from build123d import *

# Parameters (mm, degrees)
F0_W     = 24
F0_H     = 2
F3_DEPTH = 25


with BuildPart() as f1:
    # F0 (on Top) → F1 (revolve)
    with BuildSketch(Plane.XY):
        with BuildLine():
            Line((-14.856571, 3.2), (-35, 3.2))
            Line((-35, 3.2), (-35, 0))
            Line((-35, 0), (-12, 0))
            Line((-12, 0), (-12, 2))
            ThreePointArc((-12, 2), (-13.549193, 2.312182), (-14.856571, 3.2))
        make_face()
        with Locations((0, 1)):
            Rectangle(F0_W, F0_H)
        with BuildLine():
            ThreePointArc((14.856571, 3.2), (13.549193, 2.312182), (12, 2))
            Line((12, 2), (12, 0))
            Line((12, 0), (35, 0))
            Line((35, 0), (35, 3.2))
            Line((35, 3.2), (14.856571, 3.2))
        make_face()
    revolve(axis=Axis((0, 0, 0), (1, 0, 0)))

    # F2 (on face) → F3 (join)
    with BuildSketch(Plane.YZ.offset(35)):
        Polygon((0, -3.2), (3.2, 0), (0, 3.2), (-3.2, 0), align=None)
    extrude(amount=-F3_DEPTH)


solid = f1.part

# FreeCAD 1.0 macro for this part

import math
import FreeCAD as App
import Part
import Sketcher
from FreeCAD import Vector

doc = App.newDocument("Part")
params = doc.addObject("Spreadsheet::Sheet", "Params")
for row, (alias, value) in enumerate([
    ("sketch1_width", "70 mm"),
    ("sketch1_width2", "24 mm"),
    ("sketch1_height", "3.2 mm"),
    ("revolution_angle", "360 deg"),
    ("pad1_length", "25 mm"),
], start=1):
    params.set(f"A{row}", alias)
    params.set(f"B{row}", "=" + value)
    params.setAlias(f"B{row}", alias)

body = doc.addObject("PartDesign::Body", "Body")

# Sketch on XY plane
sketch1 = body.newObject("Sketcher::SketchObject", "Sketch")
sketch1.AttachmentSupport = (doc.getObject("XY_Plane"), [""])
sketch1.MapMode = "FlatFace"
sketch1.addGeometry([
    Part.LineSegment(Vector(-14.9, 3.2, 0), Vector(-35, 3.2, 0)),  # 0
    Part.LineSegment(Vector(-35, 3.2, 0), Vector(-35, 0, 0)),  # 1
    Part.LineSegment(Vector(-35, 0, 0), Vector(35, 0, 0)),  # 2
    Part.LineSegment(Vector(35, 0, 0), Vector(35, 3.2, 0)),  # 3
    Part.LineSegment(Vector(35, 3.2, 0), Vector(14.9, 3.2, 0)),  # 4
    Part.ArcOfCircle(Part.Circle(Vector(12, 6, 0), Vector(0, 0, 1), 4), math.radians(-90), math.radians(-44)),  # 5
    Part.LineSegment(Vector(12, 2, 0), Vector(-12, 2, 0)),  # 6
    Part.ArcOfCircle(Part.Circle(Vector(-12, 6, 0), Vector(0, 0, 1), 4), math.radians(-136), math.radians(-90)),  # 7
], False)
sketch1.addConstraint([
    Sketcher.Constraint("Coincident", 0, 2, 1, 1),
    Sketcher.Constraint("Coincident", 1, 2, 2, 1),
    Sketcher.Constraint("Coincident", 2, 2, 3, 1),
    Sketcher.Constraint("Coincident", 3, 2, 4, 1),
    Sketcher.Constraint("Coincident", 4, 2, 5, 2),
    Sketcher.Constraint("Tangent", 5, 1, 6, 1),
    Sketcher.Constraint("Tangent", 6, 2, 7, 2),
    Sketcher.Constraint("Coincident", 7, 1, 0, 1),
    Sketcher.Constraint("Horizontal", 0),
    Sketcher.Constraint("Vertical", 1),
    Sketcher.Constraint("Horizontal", 2),
    Sketcher.Constraint("Vertical", 3),
    Sketcher.Constraint("Horizontal", 4),
    Sketcher.Constraint("Horizontal", 6),
    Sketcher.Constraint("Equal", 5, 7),
    Sketcher.Constraint("Symmetric", 1, 2, 2, 2, -1, 1),
    Sketcher.Constraint("Symmetric", 4, 2, 7, 1, -2),
    Sketcher.Constraint("DistanceX", 2, 1, 2, 2, 70.0),
    Sketcher.Constraint("DistanceX", 6, 2, 6, 1, 24.0),
    Sketcher.Constraint("DistanceY", 1, 2, 1, 1, 3.2),
    Sketcher.Constraint("DistanceY", -1, 1, 5, 1, 2.0),
    Sketcher.Constraint("Radius", 5, 3.999997),
])
sketch1.setExpression("Constraints[17]", "Params.sketch1_width")
sketch1.setExpression("Constraints[18]", "Params.sketch1_width2")
sketch1.setExpression("Constraints[19]", "Params.sketch1_height")
revolution = body.newObject("PartDesign::Revolution", "Revolution")
revolution.Profile = sketch1
revolution.ReferenceAxis = (sketch1, ["H_Axis"])
revolution.setExpression("Angle", "Params.revolution_angle")

# Sketch on YZ plane
sketch2 = body.newObject("Sketcher::SketchObject", "Sketch001")
sketch2.AttachmentSupport = (doc.getObject("YZ_Plane"), [""])
sketch2.MapMode = "FlatFace"
sketch2.AttachmentOffset = App.Placement(Vector(0, 0, 35), App.Rotation())
sketch2.addGeometry([
    Part.LineSegment(Vector(0, -3.2, 0), Vector(3.2, 0, 0)),
    Part.LineSegment(Vector(3.2, 0, 0), Vector(0, 3.2, 0)),
    Part.LineSegment(Vector(0, 3.2, 0), Vector(-3.2, 0, 0)),
    Part.LineSegment(Vector(-3.2, 0, 0), Vector(0, -3.2, 0)),
], False)
sketch2.addConstraint([
    Sketcher.Constraint("Coincident", 0, 2, 1, 1),
    Sketcher.Constraint("Coincident", 1, 2, 2, 1),
    Sketcher.Constraint("Coincident", 2, 2, 3, 1),
    Sketcher.Constraint("Coincident", 3, 2, 0, 1),
    Sketcher.Constraint("Symmetric", 0, 2, 2, 2, -1, 1),
    Sketcher.Constraint("Symmetric", 1, 2, 3, 2, -1, 1),
    Sketcher.Constraint("PointOnObject", 0, 2, -1),
    Sketcher.Constraint("PointOnObject", 1, 2, -2),
    Sketcher.Constraint("Perpendicular", 0, 1),
    Sketcher.Constraint("DistanceX", -1, 1, 0, 2, 3.2),
])
pad1 = body.newObject("PartDesign::Pad", "Pad")
pad1.Profile = sketch2
pad1.setExpression("Length", "Params.pad1_length")
pad1.Reversed = True

doc.recompute()
